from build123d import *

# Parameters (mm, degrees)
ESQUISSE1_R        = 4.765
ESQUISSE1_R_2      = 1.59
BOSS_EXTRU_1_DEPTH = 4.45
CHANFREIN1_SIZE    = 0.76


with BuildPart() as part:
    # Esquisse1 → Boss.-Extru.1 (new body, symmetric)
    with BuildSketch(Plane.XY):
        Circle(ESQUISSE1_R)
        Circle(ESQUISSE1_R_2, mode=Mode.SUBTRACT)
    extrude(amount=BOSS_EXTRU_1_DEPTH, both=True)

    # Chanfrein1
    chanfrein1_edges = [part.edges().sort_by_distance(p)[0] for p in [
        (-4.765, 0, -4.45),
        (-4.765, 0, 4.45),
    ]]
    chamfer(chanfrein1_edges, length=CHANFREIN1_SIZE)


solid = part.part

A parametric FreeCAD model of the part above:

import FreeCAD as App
import Part
import Sketcher


def edges_at(feature, points):
    """Names of the edges that pass closest to the given points."""
    edges = feature.Shape.Edges
    near = lambda p: min(range(len(edges)), key=lambda i: edges[i].distToShape(Part.Vertex(*p))[0])
    return sorted({f"Edge{near(p) + 1}" for p in points})

doc = App.newDocument("Part")
body = doc.addObject("PartDesign::Body", "Body")

# Sketch on XY plane
sketch1 = body.newObject("Sketcher::SketchObject", "Sketch")
sketch1.AttachmentSupport = (doc.getObject("XY_Plane"), [""])
sketch1.MapMode = "FlatFace"
sketch1.addGeometry([
    Part.Circle(App.Vector(0, 0, 0), App.Vector(0, 0, 1), 4.8),
    Part.Circle(App.Vector(0, 0, 0), App.Vector(0, 0, 1), 1.6),
], False)
sketch1.addConstraint([
    Sketcher.Constraint("Coincident", 0, 3, -1, 1),
    Sketcher.Constraint("Coincident", 1, 3, -1, 1),
    Sketcher.Constraint("Diameter", 0, 9.53),
    Sketcher.Constraint("Diameter", 1, 3.18),
])
pad1 = body.newObject("PartDesign::Pad", "Pad")
pad1.Profile = sketch1
pad1.Length = 8.9
pad1.Midplane = True
doc.recompute()

chamfer = body.newObject("PartDesign::Chamfer", "Chamfer")
chamfer.Base = (pad1, edges_at(pad1, [(-4.765, 0, -4.45), (-4.765, 0, 4.45)]))
chamfer.Size = 0.76

doc.recompute()
